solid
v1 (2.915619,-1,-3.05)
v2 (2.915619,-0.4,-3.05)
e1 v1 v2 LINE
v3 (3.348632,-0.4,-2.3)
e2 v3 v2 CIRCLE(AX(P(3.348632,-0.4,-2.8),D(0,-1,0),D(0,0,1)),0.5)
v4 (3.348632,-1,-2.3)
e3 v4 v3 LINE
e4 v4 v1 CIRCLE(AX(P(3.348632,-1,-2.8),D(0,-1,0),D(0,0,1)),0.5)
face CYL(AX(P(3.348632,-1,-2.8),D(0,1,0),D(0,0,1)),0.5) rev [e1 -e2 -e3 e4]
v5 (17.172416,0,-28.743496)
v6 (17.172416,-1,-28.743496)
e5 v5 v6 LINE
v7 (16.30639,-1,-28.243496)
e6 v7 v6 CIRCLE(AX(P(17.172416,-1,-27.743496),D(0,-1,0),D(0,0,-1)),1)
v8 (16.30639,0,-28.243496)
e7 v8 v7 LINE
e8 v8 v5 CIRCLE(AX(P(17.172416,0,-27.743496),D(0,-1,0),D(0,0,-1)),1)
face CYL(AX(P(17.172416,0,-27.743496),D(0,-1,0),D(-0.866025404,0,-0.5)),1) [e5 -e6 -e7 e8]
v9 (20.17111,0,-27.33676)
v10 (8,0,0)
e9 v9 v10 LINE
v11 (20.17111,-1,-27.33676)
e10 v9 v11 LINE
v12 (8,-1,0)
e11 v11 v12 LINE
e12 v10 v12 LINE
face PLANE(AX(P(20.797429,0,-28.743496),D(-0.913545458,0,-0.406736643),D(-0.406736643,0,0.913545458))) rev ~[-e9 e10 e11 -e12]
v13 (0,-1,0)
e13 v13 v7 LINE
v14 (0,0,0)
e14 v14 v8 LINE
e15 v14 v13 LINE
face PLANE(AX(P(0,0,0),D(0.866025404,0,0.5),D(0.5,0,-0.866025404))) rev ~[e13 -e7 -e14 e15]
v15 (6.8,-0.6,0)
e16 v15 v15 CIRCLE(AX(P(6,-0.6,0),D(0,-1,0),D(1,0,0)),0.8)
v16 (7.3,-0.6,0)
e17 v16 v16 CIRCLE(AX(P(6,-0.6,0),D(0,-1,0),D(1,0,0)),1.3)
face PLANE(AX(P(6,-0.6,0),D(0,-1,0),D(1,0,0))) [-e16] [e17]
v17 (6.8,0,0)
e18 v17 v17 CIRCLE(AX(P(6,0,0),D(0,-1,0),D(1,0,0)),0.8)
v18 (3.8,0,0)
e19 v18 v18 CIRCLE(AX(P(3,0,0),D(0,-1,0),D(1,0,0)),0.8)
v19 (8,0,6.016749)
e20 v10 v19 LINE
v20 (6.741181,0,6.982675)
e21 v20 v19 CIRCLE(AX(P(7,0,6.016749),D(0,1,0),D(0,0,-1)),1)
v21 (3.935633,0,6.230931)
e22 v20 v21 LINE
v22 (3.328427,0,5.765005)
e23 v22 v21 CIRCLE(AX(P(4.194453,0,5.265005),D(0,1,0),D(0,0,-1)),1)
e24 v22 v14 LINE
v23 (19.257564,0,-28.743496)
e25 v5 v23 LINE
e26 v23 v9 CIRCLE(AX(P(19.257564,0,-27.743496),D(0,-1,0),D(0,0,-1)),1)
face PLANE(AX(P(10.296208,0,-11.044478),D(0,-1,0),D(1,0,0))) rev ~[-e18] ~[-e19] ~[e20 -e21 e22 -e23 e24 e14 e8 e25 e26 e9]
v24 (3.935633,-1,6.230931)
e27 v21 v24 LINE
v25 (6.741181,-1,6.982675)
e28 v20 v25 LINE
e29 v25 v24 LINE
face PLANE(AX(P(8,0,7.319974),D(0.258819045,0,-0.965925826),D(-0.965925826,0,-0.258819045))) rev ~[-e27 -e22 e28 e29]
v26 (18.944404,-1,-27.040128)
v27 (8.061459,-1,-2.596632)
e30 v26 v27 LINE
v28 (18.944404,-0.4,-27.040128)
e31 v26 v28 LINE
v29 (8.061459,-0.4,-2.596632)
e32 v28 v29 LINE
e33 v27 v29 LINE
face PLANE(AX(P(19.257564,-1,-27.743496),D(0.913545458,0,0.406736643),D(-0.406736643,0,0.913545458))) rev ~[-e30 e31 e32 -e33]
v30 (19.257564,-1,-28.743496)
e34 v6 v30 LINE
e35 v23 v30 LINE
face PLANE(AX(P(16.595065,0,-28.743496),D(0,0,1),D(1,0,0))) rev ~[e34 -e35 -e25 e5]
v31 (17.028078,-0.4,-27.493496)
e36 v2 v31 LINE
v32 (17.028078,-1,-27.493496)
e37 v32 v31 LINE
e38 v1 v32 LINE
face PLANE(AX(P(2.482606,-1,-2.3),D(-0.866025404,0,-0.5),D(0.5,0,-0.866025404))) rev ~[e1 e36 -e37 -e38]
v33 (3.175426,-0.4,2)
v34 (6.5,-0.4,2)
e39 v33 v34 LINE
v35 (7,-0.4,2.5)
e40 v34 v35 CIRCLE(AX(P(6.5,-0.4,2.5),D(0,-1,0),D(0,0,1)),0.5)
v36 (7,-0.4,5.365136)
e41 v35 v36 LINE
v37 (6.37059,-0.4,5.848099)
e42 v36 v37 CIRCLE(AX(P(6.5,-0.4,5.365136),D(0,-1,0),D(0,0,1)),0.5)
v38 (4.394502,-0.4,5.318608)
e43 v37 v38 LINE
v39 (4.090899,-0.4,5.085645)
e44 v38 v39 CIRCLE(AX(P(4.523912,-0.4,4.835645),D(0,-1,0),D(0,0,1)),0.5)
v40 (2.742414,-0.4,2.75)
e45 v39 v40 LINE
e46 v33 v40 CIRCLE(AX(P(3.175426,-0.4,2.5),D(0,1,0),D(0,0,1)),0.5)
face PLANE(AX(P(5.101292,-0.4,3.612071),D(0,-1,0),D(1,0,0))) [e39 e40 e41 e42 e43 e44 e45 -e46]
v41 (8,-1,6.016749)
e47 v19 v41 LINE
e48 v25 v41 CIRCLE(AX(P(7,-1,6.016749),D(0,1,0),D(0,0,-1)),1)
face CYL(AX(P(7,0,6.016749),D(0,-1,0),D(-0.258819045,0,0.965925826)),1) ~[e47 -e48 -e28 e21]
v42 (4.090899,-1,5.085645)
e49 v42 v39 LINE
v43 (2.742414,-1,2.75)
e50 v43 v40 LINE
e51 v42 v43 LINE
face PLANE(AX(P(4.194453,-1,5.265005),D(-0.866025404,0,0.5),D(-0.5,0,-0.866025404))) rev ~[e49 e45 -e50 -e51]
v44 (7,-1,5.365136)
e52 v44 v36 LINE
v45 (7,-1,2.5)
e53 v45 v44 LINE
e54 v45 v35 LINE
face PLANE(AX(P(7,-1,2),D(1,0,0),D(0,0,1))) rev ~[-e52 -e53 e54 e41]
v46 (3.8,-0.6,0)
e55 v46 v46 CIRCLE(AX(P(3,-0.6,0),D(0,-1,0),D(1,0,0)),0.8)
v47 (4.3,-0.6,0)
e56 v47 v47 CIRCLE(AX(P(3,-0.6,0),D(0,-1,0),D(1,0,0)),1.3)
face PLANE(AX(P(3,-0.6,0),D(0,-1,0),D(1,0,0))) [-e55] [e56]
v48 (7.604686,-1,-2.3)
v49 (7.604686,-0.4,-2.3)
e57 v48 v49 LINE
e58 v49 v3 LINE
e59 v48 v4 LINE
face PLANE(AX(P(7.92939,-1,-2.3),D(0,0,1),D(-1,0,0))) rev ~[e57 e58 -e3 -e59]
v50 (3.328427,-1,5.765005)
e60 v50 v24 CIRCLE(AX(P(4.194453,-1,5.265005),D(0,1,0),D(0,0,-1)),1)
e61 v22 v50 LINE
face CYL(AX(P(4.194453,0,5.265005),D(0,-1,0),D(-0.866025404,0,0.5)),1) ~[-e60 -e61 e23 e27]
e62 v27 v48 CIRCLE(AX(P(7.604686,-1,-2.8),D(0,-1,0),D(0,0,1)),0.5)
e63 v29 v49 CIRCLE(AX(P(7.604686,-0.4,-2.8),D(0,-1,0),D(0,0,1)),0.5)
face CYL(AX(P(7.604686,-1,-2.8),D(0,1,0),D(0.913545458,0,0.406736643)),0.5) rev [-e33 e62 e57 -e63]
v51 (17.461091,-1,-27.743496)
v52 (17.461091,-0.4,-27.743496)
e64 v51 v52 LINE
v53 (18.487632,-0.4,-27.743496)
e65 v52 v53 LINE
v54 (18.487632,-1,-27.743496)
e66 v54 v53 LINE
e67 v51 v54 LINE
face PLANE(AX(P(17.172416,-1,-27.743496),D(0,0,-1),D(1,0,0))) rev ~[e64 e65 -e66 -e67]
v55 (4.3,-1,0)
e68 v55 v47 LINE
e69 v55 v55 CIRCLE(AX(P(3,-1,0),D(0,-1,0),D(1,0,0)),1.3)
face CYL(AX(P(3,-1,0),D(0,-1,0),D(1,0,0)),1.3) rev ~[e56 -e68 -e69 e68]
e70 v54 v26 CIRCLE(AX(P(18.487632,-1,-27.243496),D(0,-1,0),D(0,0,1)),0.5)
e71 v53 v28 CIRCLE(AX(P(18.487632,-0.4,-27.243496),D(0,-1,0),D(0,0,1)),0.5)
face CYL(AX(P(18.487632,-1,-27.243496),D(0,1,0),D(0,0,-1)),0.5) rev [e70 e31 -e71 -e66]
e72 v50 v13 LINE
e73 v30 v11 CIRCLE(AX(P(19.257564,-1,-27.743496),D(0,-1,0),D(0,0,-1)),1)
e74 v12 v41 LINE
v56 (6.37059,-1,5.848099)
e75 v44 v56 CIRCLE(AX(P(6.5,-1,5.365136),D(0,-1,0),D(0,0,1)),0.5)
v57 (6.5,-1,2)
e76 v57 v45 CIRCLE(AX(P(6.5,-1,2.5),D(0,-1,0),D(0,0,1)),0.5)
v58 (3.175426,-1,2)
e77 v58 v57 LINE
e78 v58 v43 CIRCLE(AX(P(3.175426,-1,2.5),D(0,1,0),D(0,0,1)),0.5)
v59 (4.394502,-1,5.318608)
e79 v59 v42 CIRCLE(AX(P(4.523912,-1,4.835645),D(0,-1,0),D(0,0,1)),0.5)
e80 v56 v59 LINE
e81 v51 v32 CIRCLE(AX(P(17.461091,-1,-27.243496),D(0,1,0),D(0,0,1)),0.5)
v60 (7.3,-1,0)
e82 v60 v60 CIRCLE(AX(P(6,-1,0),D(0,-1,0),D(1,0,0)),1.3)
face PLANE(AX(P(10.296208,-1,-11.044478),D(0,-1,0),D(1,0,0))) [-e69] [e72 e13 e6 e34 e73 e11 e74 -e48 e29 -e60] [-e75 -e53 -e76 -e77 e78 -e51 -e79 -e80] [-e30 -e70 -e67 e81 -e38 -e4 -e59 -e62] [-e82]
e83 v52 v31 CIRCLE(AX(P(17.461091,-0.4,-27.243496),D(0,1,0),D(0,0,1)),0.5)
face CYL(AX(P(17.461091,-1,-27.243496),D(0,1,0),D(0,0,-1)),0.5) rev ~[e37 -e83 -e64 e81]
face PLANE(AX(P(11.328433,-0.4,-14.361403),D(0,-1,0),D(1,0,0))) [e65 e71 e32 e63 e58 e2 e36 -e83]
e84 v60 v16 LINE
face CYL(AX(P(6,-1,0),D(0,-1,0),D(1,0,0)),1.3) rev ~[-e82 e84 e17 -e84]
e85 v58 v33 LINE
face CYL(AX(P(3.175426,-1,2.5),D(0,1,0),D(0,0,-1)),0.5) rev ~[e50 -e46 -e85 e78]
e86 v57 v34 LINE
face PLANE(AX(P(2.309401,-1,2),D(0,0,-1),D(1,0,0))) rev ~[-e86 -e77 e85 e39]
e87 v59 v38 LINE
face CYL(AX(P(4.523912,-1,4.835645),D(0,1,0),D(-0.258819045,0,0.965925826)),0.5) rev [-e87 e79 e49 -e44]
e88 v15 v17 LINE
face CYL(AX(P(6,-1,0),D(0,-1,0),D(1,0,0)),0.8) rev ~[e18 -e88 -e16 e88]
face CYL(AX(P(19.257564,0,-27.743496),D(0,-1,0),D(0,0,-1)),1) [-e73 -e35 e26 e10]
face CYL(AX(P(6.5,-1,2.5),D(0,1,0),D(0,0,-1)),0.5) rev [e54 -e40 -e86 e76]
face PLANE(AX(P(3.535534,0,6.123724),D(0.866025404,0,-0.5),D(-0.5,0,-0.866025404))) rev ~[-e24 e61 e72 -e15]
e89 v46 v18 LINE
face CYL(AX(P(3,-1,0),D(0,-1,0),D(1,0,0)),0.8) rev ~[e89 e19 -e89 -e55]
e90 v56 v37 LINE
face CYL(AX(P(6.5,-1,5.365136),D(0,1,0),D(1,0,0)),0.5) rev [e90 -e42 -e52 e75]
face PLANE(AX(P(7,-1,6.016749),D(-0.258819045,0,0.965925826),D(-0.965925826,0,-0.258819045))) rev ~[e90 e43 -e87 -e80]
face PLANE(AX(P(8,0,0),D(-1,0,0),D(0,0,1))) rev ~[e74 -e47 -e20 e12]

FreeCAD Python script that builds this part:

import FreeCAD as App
import Part
import Sketcher
from FreeCAD import Vector
Q = App.Units.Quantity


def edges_at(feature, points):
    """Names of the edges that pass closest to the given points."""
    edges = feature.Shape.Edges
    near = lambda p: min(range(len(edges)), key=lambda i: edges[i].distToShape(Part.Vertex(*p))[0])
    return sorted({f"Edge{near(p) + 1}" for p in points})

doc = App.newDocument("Part")
body = doc.addObject("PartDesign::Body", "Body")

# Sketch on XZ plane
sketch1 = doc.addObject("Sketcher::SketchObject", "Sketch")
body.addObject(sketch1)
sketch1.AttachmentSupport = (doc.XZ_Plane, [""])
sketch1.MapMode = "FlatFace"
sketch1.addGeometry([
    Part.LineSegment(Vector(3.535534, 6.123724, 0), Vector(0, 0, 0)),  # 0
    Part.LineSegment(Vector(0, 0, 0), Vector(16.595065, -28.743496, 0)),  # 1
    Part.LineSegment(Vector(16.595065, -28.743496, 0), Vector(20.797429, -28.743496, 0)),  # 2
    Part.LineSegment(Vector(20.797429, -28.743496, 0), Vector(8, 0, 0)),  # 3
    Part.LineSegment(Vector(8, 0, 0), Vector(8, 7.319974, 0)),  # 4
    Part.LineSegment(Vector(8, 7.319974, 0), Vector(3.535534, 6.123724, 0)),  # 5
], False)
sketch1.addConstraint([
    Sketcher.Constraint("Coincident", 0, 2, 1, 1),
    Sketcher.Constraint("Coincident", 1, 2, 2, 1),
    Sketcher.Constraint("Coincident", 2, 2, 3, 1),
    Sketcher.Constraint("Coincident", 3, 2, 4, 1),
    Sketcher.Constraint("Coincident", 4, 2, 5, 1),
    Sketcher.Constraint("Coincident", 5, 2, 0, 1),
    Sketcher.Constraint("Horizontal", 2),
    Sketcher.Constraint("Vertical", 4),
    Sketcher.Constraint("Coincident", 0, 2, -1, 1),
    Sketcher.Constraint("PointOnObject", 3, 2, -1),
    Sketcher.Constraint("Angle", 0, Q("-120 deg")),
    Sketcher.Constraint("Angle", 1, Q("-60 deg")),
    Sketcher.Constraint("Angle", 3, Q("114 deg")),
    Sketcher.Constraint("Angle", 5, Q("-165 deg")),
    Sketcher.Constraint("DistanceX", -1, 1, 3, 2, 8.0),
    Sketcher.Constraint("Distance", 1, 33.19013),
    Sketcher.Constraint("DistanceY", 4, 1, 4, 2, 7.319974),
])
pad1 = doc.addObject("PartDesign::Pad", "Pad")
body.addObject(pad1)
pad1.Profile = sketch1
pad1.Length = 1

# Sketch on XZ plane
sketch2 = doc.addObject("Sketcher::SketchObject", "Sketch001")
body.addObject(sketch2)
sketch2.AttachmentSupport = (doc.XZ_Plane, [""])
sketch2.MapMode = "FlatFace"
sketch2.AttachmentOffset = App.Placement(Vector(0, 0, 1), App.Rotation())
sketch2.addGeometry([
    Part.Circle(Vector(3, 0, 0), Vector(0, 0, 1), 0.8),
    Part.Circle(Vector(6, 0, 0), Vector(0, 0, 1), 0.8),
], False)
sketch2.addConstraint([
    Sketcher.Constraint("Equal", 0, 1),
    Sketcher.Constraint("PointOnObject", 0, 3, -1),
    Sketcher.Constraint("PointOnObject", 1, 3, -1),
    Sketcher.Constraint("Diameter", 0, 1.6),
    Sketcher.Constraint("DistanceX", -1, 1, 0, 3, 3.0),
    Sketcher.Constraint("DistanceX", -1, 1, 1, 3, 6.0),
])
pocket1 = doc.addObject("PartDesign::Pocket", "Pocket")
body.addObject(pocket1)
pocket1.Profile = sketch2
pocket1.Type = "ThroughAll"
pocket1.Midplane = True

# Sketch on XZ plane
sketch3 = doc.addObject("Sketcher::SketchObject", "Sketch002")
body.addObject(sketch3)
sketch3.AttachmentSupport = (doc.XZ_Plane, [""])
sketch3.MapMode = "FlatFace"
sketch3.AttachmentOffset = App.Placement(Vector(0, 0, -0.001), App.Rotation())
sketch3.addGeometry([
    Part.LineSegment(Vector(8, -3.533766, 0), Vector(3.976013, -3.533766, 0)),
    Part.LineSegment(Vector(3.976013, -3.533766, 0), Vector(16.30639, -26.243496, 0)),
    Part.LineSegment(Vector(16.30639, -26.243496, 0), Vector(18.589721, -26.243496, 0)),
    Part.LineSegment(Vector(18.589721, -26.243496, 0), Vector(8, -3.533766, 0)),
], False)
sketch3.addConstraint([
    Sketcher.Constraint("Coincident", 0, 2, 1, 1),
    Sketcher.Constraint("Coincident", 1, 2, 2, 1),
    Sketcher.Constraint("Coincident", 2, 2, 3, 1),
    Sketcher.Constraint("Coincident", 3, 2, 0, 1),
    Sketcher.Constraint("Horizontal", 0),
    Sketcher.Constraint("Horizontal", 2),
    Sketcher.Constraint("Angle", 3, Q("115 deg")),
    Sketcher.Constraint("DistanceX", -1, 1, 3, 2, 8.0),
    Sketcher.Constraint("Angle", 1, Q("-61.5 deg")),
    Sketcher.Constraint("DistanceX", 2, 1, 2, 2, 2.283331),
    Sketcher.Constraint("DistanceX", 0, 2, 0, 1, 4.023987),
    Sketcher.Constraint("DistanceY", 0, 2, -1, 1, 3.533766),
])
pocket2 = doc.addObject("PartDesign::Pocket", "Pocket001")
body.addObject(pocket2)
pocket2.Profile = sketch3
pocket2.Length = 23.999
doc.recompute()

fillet = doc.addObject("PartDesign::Fillet", "Fillet")
body.addObject(fillet)
fillet.Base = (pocket2, edges_at(pocket2, [
    (16.595, -0.5, -28.743),
    (20.797, -0.5, -28.743),
    (3.536, -0.5, 6.124),
    (8, -0.5, 7.32),
]))
fillet.Radius = 1

# Sketch on XZ plane
sketch4 = doc.addObject("Sketcher::SketchObject", "Sketch003")
body.addObject(sketch4)
sketch4.AttachmentSupport = (doc.XZ_Plane, [""])
sketch4.MapMode = "FlatFace"
sketch4.AttachmentOffset = App.Placement(Vector(0, 0, 1), App.Rotation())
sketch4.addGeometry([
    Part.LineSegment(Vector(2.309401, 2, 0), Vector(7, 2, 0)),  # 0
    Part.LineSegment(Vector(7, 2, 0), Vector(7, 6.016749, 0)),  # 1
    Part.LineSegment(Vector(7, 6.016749, 0), Vector(4.194453, 5.265005, 0)),  # 2
    Part.LineSegment(Vector(4.194453, 5.265005, 0), Vector(2.309401, 2, 0)),  # 3
    Part.LineSegment(Vector(17.172416, -27.743496, 0), Vector(19.257564, -27.743496, 0)),  # 4
    Part.LineSegment(Vector(19.257564, -27.743496, 0), Vector(7.92939, -2.3, 0)),  # 5
    Part.LineSegment(Vector(7.92939, -2.3, 0), Vector(2.482606, -2.3, 0)),  # 6
    Part.LineSegment(Vector(2.482606, -2.3, 0), Vector(17.172416, -27.743496, 0)),  # 7
], False)
sketch4.addConstraint([
    Sketcher.Constraint("Coincident", 0, 2, 1, 1),
    Sketcher.Constraint("Coincident", 1, 2, 2, 1),
    Sketcher.Constraint("Coincident", 2, 2, 3, 1),
    Sketcher.Constraint("Coincident", 3, 2, 0, 1),
    Sketcher.Constraint("Coincident", 4, 2, 5, 1),
    Sketcher.Constraint("Coincident", 5, 2, 6, 1),
    Sketcher.Constraint("Coincident", 6, 2, 7, 1),
    Sketcher.Constraint("Coincident", 7, 2, 4, 1),
    Sketcher.Constraint("Horizontal", 0),
    Sketcher.Constraint("Vertical", 1),
    Sketcher.Constraint("Horizontal", 4),
    Sketcher.Constraint("Horizontal", 6),
    Sketcher.Constraint("Angle", 2, Q("-165 deg")),
    Sketcher.Constraint("Angle", 3, Q("-120 deg")),
    Sketcher.Constraint("Angle", 5, Q("114 deg")),
    Sketcher.Constraint("Angle", 7, Q("-60 deg")),
    Sketcher.Constraint("DistanceX", -1, 1, 0, 2, 7.0),
    Sketcher.Constraint("DistanceY", -1, 1, 0, 2, 2.0),
    Sketcher.Constraint("DistanceY", 5, 2, -1, 1, 2.3),
    Sketcher.Constraint("DistanceX", 0, 1, 0, 2, 4.690599),
    Sketcher.Constraint("DistanceX", 4, 1, 4, 2, 2.085149),
    Sketcher.Constraint("DistanceY", 1, 1, 1, 2, 4.016749),
    Sketcher.Constraint("DistanceY", 4, 2, 2, 2, 33.008501),
    Sketcher.Constraint("DistanceX", -1, 1, 5, 2, 7.92939),
])
pocket3 = doc.addObject("PartDesign::Pocket", "Pocket002")
body.addObject(pocket3)
pocket3.Profile = sketch4
pocket3.Length = 0.6
doc.recompute()

fillet2 = doc.addObject("PartDesign::Fillet", "Fillet001")
body.addObject(fillet2)
fillet2.Base = (pocket3, edges_at(pocket3, [
    (2.309, -0.7, 2),
    (7, -0.7, 2),
    (7, -0.7, 6.017),
    (4.194, -0.7, 5.265),
    (7.929, -0.7, -2.3),
    (2.483, -0.7, -2.3),
    (19.258, -0.7, -27.743),
    (17.172, -0.7, -27.743),
]))
fillet2.Radius = 0.5

# Sketch on XZ plane
sketch5 = doc.addObject("Sketcher::SketchObject", "Sketch004")
body.addObject(sketch5)
sketch5.AttachmentSupport = (doc.XZ_Plane, [""])
sketch5.MapMode = "FlatFace"
sketch5.AttachmentOffset = App.Placement(Vector(0, 0, 1), App.Rotation())
sketch5.addGeometry([
    Part.Circle(Vector(3, 0, 0), Vector(0, 0, 1), 1.3),
    Part.Circle(Vector(6, 0, 0), Vector(0, 0, 1), 1.3),
], False)
sketch5.addConstraint([
    Sketcher.Constraint("Equal", 0, 1),
    Sketcher.Constraint("PointOnObject", 0, 3, -1),
    Sketcher.Constraint("PointOnObject", 1, 3, -1),
    Sketcher.Constraint("Diameter", 0, 2.6),
    Sketcher.Constraint("DistanceX", -1, 1, 0, 3, 3.0),
    Sketcher.Constraint("DistanceX", -1, 1, 1, 3, 6.0),
])
pocket4 = doc.addObject("PartDesign::Pocket", "Pocket003")
body.addObject(pocket4)
pocket4.Profile = sketch5
pocket4.Length = 0.4

doc.recompute()
